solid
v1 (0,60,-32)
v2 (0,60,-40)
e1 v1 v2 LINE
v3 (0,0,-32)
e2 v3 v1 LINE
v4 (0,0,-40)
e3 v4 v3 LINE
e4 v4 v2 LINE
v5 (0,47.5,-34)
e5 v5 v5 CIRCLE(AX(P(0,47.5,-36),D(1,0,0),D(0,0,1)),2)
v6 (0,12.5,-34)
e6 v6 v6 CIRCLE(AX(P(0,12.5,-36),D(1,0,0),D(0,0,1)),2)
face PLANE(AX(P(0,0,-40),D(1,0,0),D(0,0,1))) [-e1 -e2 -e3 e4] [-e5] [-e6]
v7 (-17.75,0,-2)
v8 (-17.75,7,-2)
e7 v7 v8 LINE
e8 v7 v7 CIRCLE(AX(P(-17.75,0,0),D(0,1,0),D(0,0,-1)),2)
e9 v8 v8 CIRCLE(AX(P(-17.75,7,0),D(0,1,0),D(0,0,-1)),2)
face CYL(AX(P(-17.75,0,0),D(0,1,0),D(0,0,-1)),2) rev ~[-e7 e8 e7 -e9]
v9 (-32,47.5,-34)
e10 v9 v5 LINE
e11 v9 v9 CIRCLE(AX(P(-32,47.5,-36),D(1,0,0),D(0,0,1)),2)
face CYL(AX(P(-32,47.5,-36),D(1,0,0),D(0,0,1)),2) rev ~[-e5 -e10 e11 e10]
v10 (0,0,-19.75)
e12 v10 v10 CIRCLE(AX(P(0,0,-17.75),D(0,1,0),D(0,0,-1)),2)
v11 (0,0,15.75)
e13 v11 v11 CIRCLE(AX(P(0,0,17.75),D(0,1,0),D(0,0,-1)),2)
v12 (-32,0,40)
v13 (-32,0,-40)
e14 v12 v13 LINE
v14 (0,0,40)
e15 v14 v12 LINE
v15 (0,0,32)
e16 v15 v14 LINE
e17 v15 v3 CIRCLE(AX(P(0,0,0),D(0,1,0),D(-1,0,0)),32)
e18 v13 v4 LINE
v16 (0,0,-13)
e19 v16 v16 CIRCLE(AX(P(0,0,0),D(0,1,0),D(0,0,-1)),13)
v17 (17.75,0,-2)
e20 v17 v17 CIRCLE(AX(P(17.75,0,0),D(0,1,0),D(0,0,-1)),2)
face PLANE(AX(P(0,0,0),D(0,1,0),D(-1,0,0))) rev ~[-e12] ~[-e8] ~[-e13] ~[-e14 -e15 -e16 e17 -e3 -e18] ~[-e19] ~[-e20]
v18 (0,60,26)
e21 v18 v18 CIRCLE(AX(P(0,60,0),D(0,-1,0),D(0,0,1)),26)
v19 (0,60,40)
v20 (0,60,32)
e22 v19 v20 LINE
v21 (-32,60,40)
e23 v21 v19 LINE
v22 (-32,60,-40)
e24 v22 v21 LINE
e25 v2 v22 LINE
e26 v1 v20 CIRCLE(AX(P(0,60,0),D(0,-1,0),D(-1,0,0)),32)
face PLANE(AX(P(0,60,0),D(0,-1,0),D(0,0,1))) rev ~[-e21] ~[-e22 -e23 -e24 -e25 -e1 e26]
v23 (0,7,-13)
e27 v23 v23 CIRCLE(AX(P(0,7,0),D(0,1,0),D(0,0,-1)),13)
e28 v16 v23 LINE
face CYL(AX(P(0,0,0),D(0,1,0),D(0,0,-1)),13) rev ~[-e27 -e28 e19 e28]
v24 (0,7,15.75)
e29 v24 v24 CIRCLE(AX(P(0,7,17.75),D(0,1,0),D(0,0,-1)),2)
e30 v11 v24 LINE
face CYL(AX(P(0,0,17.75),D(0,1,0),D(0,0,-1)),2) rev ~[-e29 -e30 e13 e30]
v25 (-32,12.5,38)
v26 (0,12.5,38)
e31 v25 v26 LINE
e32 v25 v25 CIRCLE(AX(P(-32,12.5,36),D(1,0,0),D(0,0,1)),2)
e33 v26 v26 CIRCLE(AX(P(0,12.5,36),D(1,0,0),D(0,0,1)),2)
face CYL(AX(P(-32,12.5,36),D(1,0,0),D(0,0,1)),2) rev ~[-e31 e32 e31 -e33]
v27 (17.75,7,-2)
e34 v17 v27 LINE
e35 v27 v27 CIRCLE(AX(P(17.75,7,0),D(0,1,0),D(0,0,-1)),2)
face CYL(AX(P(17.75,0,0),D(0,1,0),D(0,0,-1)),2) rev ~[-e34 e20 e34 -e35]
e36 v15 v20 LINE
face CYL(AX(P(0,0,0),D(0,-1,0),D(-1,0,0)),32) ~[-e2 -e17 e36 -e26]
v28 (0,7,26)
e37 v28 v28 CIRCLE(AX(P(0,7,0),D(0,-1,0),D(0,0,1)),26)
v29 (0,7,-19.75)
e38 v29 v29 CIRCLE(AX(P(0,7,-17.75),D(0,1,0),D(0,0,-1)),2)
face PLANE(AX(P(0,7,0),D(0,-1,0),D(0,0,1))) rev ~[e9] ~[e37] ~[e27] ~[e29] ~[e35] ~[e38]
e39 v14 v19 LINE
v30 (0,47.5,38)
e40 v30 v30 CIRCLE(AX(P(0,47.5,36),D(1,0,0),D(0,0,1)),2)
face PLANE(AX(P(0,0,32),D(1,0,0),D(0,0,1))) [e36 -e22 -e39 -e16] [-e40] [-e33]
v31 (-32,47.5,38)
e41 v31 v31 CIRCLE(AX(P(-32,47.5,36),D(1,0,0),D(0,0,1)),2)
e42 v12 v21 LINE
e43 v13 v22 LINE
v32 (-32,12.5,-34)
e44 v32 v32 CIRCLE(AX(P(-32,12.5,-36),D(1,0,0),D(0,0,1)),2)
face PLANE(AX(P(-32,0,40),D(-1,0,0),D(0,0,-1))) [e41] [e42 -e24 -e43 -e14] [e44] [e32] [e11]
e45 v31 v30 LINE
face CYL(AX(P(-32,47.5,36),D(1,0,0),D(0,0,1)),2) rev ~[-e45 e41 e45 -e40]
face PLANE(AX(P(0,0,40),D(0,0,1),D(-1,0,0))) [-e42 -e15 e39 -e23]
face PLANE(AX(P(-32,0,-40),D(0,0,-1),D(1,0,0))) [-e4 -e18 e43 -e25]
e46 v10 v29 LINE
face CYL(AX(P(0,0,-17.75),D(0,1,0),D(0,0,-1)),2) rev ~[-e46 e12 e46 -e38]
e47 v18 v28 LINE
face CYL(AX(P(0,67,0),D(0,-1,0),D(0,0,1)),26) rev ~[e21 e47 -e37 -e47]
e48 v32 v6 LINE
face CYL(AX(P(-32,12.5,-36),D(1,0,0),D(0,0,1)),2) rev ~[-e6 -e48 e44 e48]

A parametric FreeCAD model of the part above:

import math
import FreeCAD as App
import Part
import Sketcher
from FreeCAD import Vector

doc = App.newDocument("Part")
params = doc.addObject("Spreadsheet::Sheet", "Params")
for row, (alias, value) in enumerate([
    ("sketch1_radius", "32 mm"),
    ("sketch1_width", "32 mm"),
    ("sketch1_height", "80 mm"),
    ("pad1_length", "67 mm"),
    ("sketch2_diameter", "52 mm"),
    ("hole_diameter", "52 mm"),
    ("hole_depth", "60 mm"),
    ("sketch3_diameter", "26 mm"),
    ("hole2_diameter", "26 mm"),
    ("hole2_depth", "60 mm"),
    ("sketch4_diameter", "4 mm"),
    ("hole3_diameter", "4 mm"),
    ("hole3_depth", "60 mm"),
    ("sketch5_diameter", "200 mm"),
    ("hole4_diameter", "200 mm"),
    ("hole4_depth", "7 mm"),
    ("sketch6_diameter", "4 mm"),
    ("hole5_diameter", "4 mm"),
    ("hole5_depth", "32 mm"),
], start=1):
    params.set(f"A{row}", alias)
    params.set(f"B{row}", "=" + value)
    params.setAlias(f"B{row}", alias)

body = doc.addObject("PartDesign::Body", "Body")

sketch1 = body.newObject("Sketcher::SketchObject", "Sketch")
sketch1.AttachmentSupport = (doc.getObject("XZ_Plane"), [""])
sketch1.MapMode = "FlatFace"
sketch1.addGeometry([
    Part.ArcOfCircle(Part.Circle(Vector(0, 0, 0), Vector(0, 0, 1), 32), math.radians(-90), math.radians(90)),
    Part.LineSegment(Vector(0, -32, 0), Vector(0, -40, 0)),
    Part.LineSegment(Vector(0, -40, 0), Vector(-32, -40, 0)),
    Part.LineSegment(Vector(-32, -40, 0), Vector(-32, 40, 0)),
    Part.LineSegment(Vector(-32, 40, 0), Vector(0, 40, 0)),
    Part.LineSegment(Vector(0, 40, 0), Vector(0, 32, 0)),
], False)
sketch1.addConstraint([
    Sketcher.Constraint("Coincident", 0, 1, 1, 1),
    Sketcher.Constraint("Coincident", 1, 2, 2, 1),
    Sketcher.Constraint("Coincident", 2, 2, 3, 1),
    Sketcher.Constraint("Coincident", 3, 2, 4, 1),
    Sketcher.Constraint("Coincident", 4, 2, 5, 1),
    Sketcher.Constraint("Coincident", 5, 2, 0, 2),
    Sketcher.Constraint("Vertical", 1),
    Sketcher.Constraint("Horizontal", 2),
    Sketcher.Constraint("Vertical", 3),
    Sketcher.Constraint("Horizontal", 4),
    Sketcher.Constraint("Vertical", 5),
    Sketcher.Constraint("Coincident", 0, 3, -1, 1),
    Sketcher.Constraint("Symmetric", 1, 2, 4, 2, -1, 1),
    Sketcher.Constraint("PointOnObject", 0, 1, -2),
    Sketcher.Constraint("Radius", 0, 32.0),
    Sketcher.Constraint("DistanceX", 2, 2, 2, 1, 32.0),
    Sketcher.Constraint("DistanceY", 3, 1, 3, 2, 80.0),
])
sketch1.setExpression("Constraints[14]", "Params.sketch1_radius")
sketch1.setExpression("Constraints[15]", "Params.sketch1_width")
sketch1.setExpression("Constraints[16]", "Params.sketch1_height")
pad1 = body.newObject("PartDesign::Pad", "Pad")
pad1.Profile = sketch1
pad1.setExpression("Length", "Params.pad1_length")
pad1.Reversed = True

sketch2 = body.newObject("Sketcher::SketchObject", "Sketch001")
sketch2.AttachmentSupport = (doc.getObject("XZ_Plane"), [""])
sketch2.MapMode = "FlatFace"
sketch2.AttachmentOffset = App.Placement(Vector(0, 0, -67), App.Rotation())
sketch2.addGeometry(Part.Circle(Vector(0, 0, 0), Vector(0, 0, 1), 26), False)
sketch2.addConstraint([
    Sketcher.Constraint("Coincident", 0, 3, -1, 1),
    Sketcher.Constraint("Diameter", 0, 52.0),
])
sketch2.setExpression("Constraints[1]", "Params.sketch2_diameter")
doc.recompute()
hole = body.newObject("PartDesign::Hole", "Hole")
hole.Profile = sketch2
hole.ThreadType = "None"
hole.setExpression("Diameter", "Params.hole_diameter")
hole.DepthType = "Dimension"
hole.setExpression("Depth", "Params.hole_depth")
hole.DrillPoint = "Flat"
hole.Reversed = True

sketch3 = body.newObject("Sketcher::SketchObject", "Sketch002")
sketch3.AttachmentSupport = (doc.getObject("XZ_Plane"), [""])
sketch3.MapMode = "FlatFace"
sketch3.addGeometry(Part.Circle(Vector(0, 0, 0), Vector(0, 0, 1), 13), False)
sketch3.addConstraint([
    Sketcher.Constraint("Coincident", 0, 3, -1, 1),
    Sketcher.Constraint("Diameter", 0, 26.0),
])
sketch3.setExpression("Constraints[1]", "Params.sketch3_diameter")
doc.recompute()
hole2 = body.newObject("PartDesign::Hole", "Hole001")
hole2.Profile = sketch3
hole2.ThreadType = "None"
hole2.setExpression("Diameter", "Params.hole2_diameter")
hole2.DepthType = "Dimension"
hole2.setExpression("Depth", "Params.hole2_depth")
hole2.DrillPoint = "Flat"

sketch4 = body.newObject("Sketcher::SketchObject", "Sketch003")
sketch4.AttachmentSupport = (doc.getObject("XZ_Plane"), [""])
sketch4.MapMode = "FlatFace"
sketch4.addGeometry([
    Part.Circle(Vector(17.8, 0, 0), Vector(0, 0, 1), 2),
    Part.Circle(Vector(0, -17.8, 0), Vector(0, 0, 1), 2),
    Part.Circle(Vector(-17.8, 0, 0), Vector(0, 0, 1), 2),
    Part.Circle(Vector(0, 17.8, 0), Vector(0, 0, 1), 2),
], False)
sketch4.addConstraint([
    Sketcher.Constraint("Equal", 0, 1),
    Sketcher.Constraint("Equal", 1, 2),
    Sketcher.Constraint("Equal", 2, 3),
    Sketcher.Constraint("Symmetric", 0, 3, 2, 3, -1, 1),
    Sketcher.Constraint("Symmetric", 1, 3, 3, 3, -1, 1),
    Sketcher.Constraint("PointOnObject", 0, 3, -1),
    Sketcher.Constraint("PointOnObject", 1, 3, -2),
    Sketcher.Constraint("Diameter", 0, 4.0),
    Sketcher.Constraint("DistanceX", 2, 3, 0, 3, 35.5),
    Sketcher.Constraint("DistanceY", 1, 3, 3, 3, 35.5),
])
sketch4.setExpression("Constraints[7]", "Params.sketch4_diameter")
doc.recompute()
hole3 = body.newObject("PartDesign::Hole", "Hole002")
hole3.Profile = sketch4
hole3.ThreadType = "None"
hole3.setExpression("Diameter", "Params.hole3_diameter")
hole3.DepthType = "Dimension"
hole3.setExpression("Depth", "Params.hole3_depth")
hole3.DrillPoint = "Flat"

sketch5 = body.newObject("Sketcher::SketchObject", "Sketch004")
sketch5.AttachmentSupport = (doc.getObject("XZ_Plane"), [""])
sketch5.MapMode = "FlatFace"
sketch5.AttachmentOffset = App.Placement(Vector(0, 0, -67), App.Rotation())
sketch5.addGeometry(Part.Circle(Vector(0, 0, 0), Vector(0, 0, 1), 100), False)
sketch5.addConstraint([
    Sketcher.Constraint("Coincident", 0, 3, -1, 1),
    Sketcher.Constraint("Diameter", 0, 200.0),
])
sketch5.setExpression("Constraints[1]", "Params.sketch5_diameter")
doc.recompute()
hole4 = body.newObject("PartDesign::Hole", "Hole003")
hole4.Profile = sketch5
hole4.ThreadType = "None"
hole4.setExpression("Diameter", "Params.hole4_diameter")
hole4.DepthType = "Dimension"
hole4.setExpression("Depth", "Params.hole4_depth")
hole4.DrillPoint = "Flat"
hole4.Reversed = True

sketch6 = body.newObject("Sketcher::SketchObject", "Sketch005")
sketch6.AttachmentSupport = (doc.getObject("YZ_Plane"), [""])
sketch6.MapMode = "FlatFace"
sketch6.AttachmentOffset = App.Placement(Vector(0, 0, -32), App.Rotation())
sketch6.addGeometry([
    Part.Circle(Vector(47.5, -36, 0), Vector(0, 0, 1), 2),
    Part.Circle(Vector(12.5, -36, 0), Vector(0, 0, 1), 2),
    Part.Circle(Vector(12.5, 36, 0), Vector(0, 0, 1), 2),
    Part.Circle(Vector(47.5, 36, 0), Vector(0, 0, 1), 2),
], False)
sketch6.addConstraint([
    Sketcher.Constraint("Equal", 0, 1),
    Sketcher.Constraint("Equal", 1, 2),
    Sketcher.Constraint("Equal", 2, 3),
    Sketcher.Constraint("Symmetric", 1, 3, 2, 3, -1),
    Sketcher.Constraint("Symmetric", 0, 3, 3, 3, -1),
    Sketcher.Constraint("Horizontal", 0, 3, 1, 3),
    Sketcher.Constraint("Diameter", 0, 4.0),
    Sketcher.Constraint("DistanceY", 0, 3, -1, 1, 36.0),
    Sketcher.Constraint("DistanceX", 1, 3, 0, 3, 35.0),
    Sketcher.Constraint("DistanceX", -1, 1, 0, 3, 47.5),
])
sketch6.setExpression("Constraints[6]", "Params.sketch6_diameter")
doc.recompute()
hole5 = body.newObject("PartDesign::Hole", "Hole004")
hole5.Profile = sketch6
hole5.ThreadType = "None"
hole5.setExpression("Diameter", "Params.hole5_diameter")
hole5.DepthType = "Dimension"
hole5.setExpression("Depth", "Params.hole5_depth")
hole5.DrillPoint = "Flat"
hole5.Reversed = True

doc.recompute()
